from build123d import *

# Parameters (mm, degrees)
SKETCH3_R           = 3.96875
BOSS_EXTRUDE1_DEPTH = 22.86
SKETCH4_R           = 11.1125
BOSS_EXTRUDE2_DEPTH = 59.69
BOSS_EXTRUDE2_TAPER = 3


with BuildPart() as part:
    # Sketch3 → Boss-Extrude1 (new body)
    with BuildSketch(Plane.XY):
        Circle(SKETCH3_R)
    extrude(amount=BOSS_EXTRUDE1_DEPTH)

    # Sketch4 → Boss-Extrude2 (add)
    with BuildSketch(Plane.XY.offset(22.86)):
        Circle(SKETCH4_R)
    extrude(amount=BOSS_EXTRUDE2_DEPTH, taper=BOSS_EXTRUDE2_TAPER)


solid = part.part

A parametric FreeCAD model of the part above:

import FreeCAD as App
import Part
import Sketcher

V = App.Vector
Q = App.Units.Quantity

doc = App.newDocument("Part")
body = doc.addObject("PartDesign::Body", "Body")

sketch1 = body.newObject("Sketcher::SketchObject", "Sketch")
sketch1.AttachmentSupport = (doc.getObject("XY_Plane"), [""])
sketch1.MapMode = "FlatFace"
sketch1.addGeometry(Part.Circle(V(0, 0, 0), V(0, 0, 1), 3.96875), False)
sketch1.addConstraint([
    Sketcher.Constraint("Coincident", 0, 3, -1, 1),
    Sketcher.Constraint("Diameter", 0, Q("0.3125 in")),
])
pad1 = body.newObject("PartDesign::Pad", "Pad")
pad1.Profile = sketch1
pad1.Length = Q("0.9 in")

sketch2 = body.newObject("Sketcher::SketchObject", "Sketch001")
sketch2.AttachmentSupport = (doc.getObject("XY_Plane"), [""])
sketch2.MapMode = "FlatFace"
sketch2.AttachmentOffset = App.Placement(V(0, 0, 0.9 * 25.4), App.Rotation())
sketch2.addGeometry(Part.Circle(V(0, 0, 0), V(0, 0, 1), 11.1125), False)
sketch2.addConstraint([
    Sketcher.Constraint("Coincident", 0, 3, -1, 1),
    Sketcher.Constraint("Diameter", 0, Q("0.875 in")),
])
pad2 = body.newObject("PartDesign::Pad", "Pad001")
pad2.Profile = sketch2
pad2.Length = Q("2.35 in")
pad2.TaperAngle = -3

doc.recompute()
